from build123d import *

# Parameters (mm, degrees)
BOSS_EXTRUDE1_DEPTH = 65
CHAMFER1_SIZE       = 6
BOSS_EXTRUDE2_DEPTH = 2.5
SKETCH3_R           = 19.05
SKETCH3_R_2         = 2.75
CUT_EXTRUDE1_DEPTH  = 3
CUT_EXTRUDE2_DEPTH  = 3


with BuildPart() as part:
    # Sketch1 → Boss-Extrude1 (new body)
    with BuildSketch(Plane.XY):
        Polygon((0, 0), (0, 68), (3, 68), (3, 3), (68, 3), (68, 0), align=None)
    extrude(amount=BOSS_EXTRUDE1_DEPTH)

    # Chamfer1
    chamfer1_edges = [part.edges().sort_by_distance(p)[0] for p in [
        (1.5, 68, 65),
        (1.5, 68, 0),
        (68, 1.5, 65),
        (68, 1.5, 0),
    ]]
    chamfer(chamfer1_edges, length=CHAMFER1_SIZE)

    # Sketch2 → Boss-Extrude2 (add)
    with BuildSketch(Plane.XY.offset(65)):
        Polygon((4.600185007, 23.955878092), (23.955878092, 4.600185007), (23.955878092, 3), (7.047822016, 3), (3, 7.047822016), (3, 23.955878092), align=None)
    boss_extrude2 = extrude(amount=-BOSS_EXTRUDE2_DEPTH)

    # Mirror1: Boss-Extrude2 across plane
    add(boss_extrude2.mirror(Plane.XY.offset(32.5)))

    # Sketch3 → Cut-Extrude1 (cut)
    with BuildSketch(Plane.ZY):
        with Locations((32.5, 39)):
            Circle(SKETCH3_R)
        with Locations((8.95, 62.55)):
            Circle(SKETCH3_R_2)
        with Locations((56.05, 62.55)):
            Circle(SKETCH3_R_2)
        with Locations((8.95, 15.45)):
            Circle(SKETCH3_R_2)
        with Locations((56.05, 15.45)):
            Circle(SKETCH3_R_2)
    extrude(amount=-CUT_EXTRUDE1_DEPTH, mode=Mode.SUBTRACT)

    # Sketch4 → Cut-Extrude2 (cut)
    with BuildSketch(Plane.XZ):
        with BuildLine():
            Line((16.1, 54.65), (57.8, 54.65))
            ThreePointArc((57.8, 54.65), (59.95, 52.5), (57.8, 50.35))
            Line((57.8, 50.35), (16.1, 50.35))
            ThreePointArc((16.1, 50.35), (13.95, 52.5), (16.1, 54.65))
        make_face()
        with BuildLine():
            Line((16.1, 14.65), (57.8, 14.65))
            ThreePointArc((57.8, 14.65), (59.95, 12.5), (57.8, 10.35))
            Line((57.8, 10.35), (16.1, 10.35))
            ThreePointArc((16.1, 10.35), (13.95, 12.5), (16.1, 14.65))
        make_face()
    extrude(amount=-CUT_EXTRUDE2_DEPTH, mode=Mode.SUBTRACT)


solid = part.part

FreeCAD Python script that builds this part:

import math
import FreeCAD as App
import Part
import Sketcher
from FreeCAD import Vector
Q = App.Units.Quantity


def edges_at(feature, points):
    """Names of the edges that pass closest to the given points."""
    edges = feature.Shape.Edges
    near = lambda p: min(range(len(edges)), key=lambda i: edges[i].distToShape(Part.Vertex(*p))[0])
    return sorted({f"Edge{near(p) + 1}" for p in points})


def add_polygon(sketch, points):
    """Adds a closed chain of lines whose ends are joined by coincident constraints."""
    first, n = sketch.GeometryCount, len(points)
    for a, b in zip(points, points[1:] + points[:1]):
        sketch.addGeometry(Part.LineSegment(App.Vector(*a, 0), App.Vector(*b, 0)), False)
    for i in range(n):
        sketch.addConstraint(Sketcher.Constraint("Coincident", first + i, 2, first + (i + 1) % n, 1))

doc = App.newDocument("Part")
params = doc.addObject("Spreadsheet::Sheet", "Params")
for row, (alias, value) in enumerate([
    ("sketch1_width", "68 mm"),
    ("sketch1_width2", "65 mm"),
    ("pad1_length", "65 mm"),
    ("chamfer_size", "6 mm"),
    ("pad2_length", "2.5 mm"),
    ("sketch3_diameter", "38.1 mm"),
    ("sketch3_diameter2", "5.5 mm"),
    ("pocket1_length", "3 mm"),
    ("sketch4_radius", "2.15 mm"),
    ("sketch4_width", "41.7 mm"),
    ("pocket2_length", "3 mm"),
], start=1):
    params.set(f"A{row}", alias)
    params.set(f"B{row}", "=" + value)
    params.setAlias(f"B{row}", alias)

body = doc.addObject("PartDesign::Body", "Body")

# Sketch on XY plane
sketch1 = body.newObject("Sketcher::SketchObject", "Sketch")
sketch1.AttachmentSupport = (doc.getObject("XY_Plane"), [""])
sketch1.MapMode = "FlatFace"
add_polygon(sketch1, [(0, 68), (0, 0), (68, 0), (68, 3), (3, 3), (3, 68)])  # lines 0-5
sketch1.addConstraint([
    Sketcher.Constraint("Vertical", 0),
    Sketcher.Constraint("Horizontal", 1),
    Sketcher.Constraint("Vertical", 2),
    Sketcher.Constraint("Horizontal", 3),
    Sketcher.Constraint("Vertical", 4),
    Sketcher.Constraint("Horizontal", 5),
    Sketcher.Constraint("Coincident", 0, 2, -1, 1),
    Sketcher.Constraint("Equal", 1, 0),
    Sketcher.Constraint("Equal", 5, 2),
    Sketcher.Constraint("DistanceX", 1, 1, 1, 2, Q("68 mm")),
    Sketcher.Constraint("DistanceX", 3, 2, 3, 1, Q("65 mm")),
])
sketch1.setExpression("Constraints[15]", "Params.sketch1_width")
sketch1.setExpression("Constraints[16]", "Params.sketch1_width2")
pad1 = body.newObject("PartDesign::Pad", "Pad")
pad1.Profile = sketch1
pad1.setExpression("Length", "Params.pad1_length")
doc.recompute()

chamfer = body.newObject("PartDesign::Chamfer", "Chamfer")
chamfer.Base = (pad1, edges_at(pad1, [
    (1.5, 68, 65),
    (1.5, 68, 0),
    (68, 1.5, 65),
    (68, 1.5, 0),
]))
chamfer.setExpression("Size", "Params.chamfer_size")

# Sketch on XY plane
sketch2 = body.newObject("Sketcher::SketchObject", "Sketch001")
sketch2.AttachmentSupport = (doc.getObject("XY_Plane"), [""])
sketch2.MapMode = "FlatFace"
sketch2.AttachmentOffset = App.Placement(Vector(0, 0, 65), App.Rotation())
add_polygon(sketch2, [(24, 4.6), (4.6, 24), (3, 24), (3, 7), (7, 3), (24, 3)])  # lines 0-5
sketch2.addConstraint([
    Sketcher.Constraint("Horizontal", 1),
    Sketcher.Constraint("Vertical", 2),
    Sketcher.Constraint("Horizontal", 4),
    Sketcher.Constraint("Vertical", 5),
    Sketcher.Constraint("Parallel", 0, 3),
    Sketcher.Constraint("Equal", 4, 2),
    Sketcher.Constraint("Equal", 1, 5),
    Sketcher.Constraint("DistanceX", -1, 1, 1, 2, Q("3 mm")),
    Sketcher.Constraint("DistanceY", -1, 1, 3, 2, Q("3 mm")),
    Sketcher.Constraint("DistanceX", 1, 2, 1, 1, Q("1.600185 mm")),
    Sketcher.Constraint("DistanceX", 4, 1, 4, 2, Q("16.908056 mm")),
    Sketcher.Constraint("DistanceY", -1, 1, 0, 2, Q("23.955878 mm")),
])
pad2 = body.newObject("PartDesign::Pad", "Pad001")
pad2.Profile = sketch2
pad2.setExpression("Length", "Params.pad2_length")
pad2.Reversed = True
doc.recompute()

datumplane = body.newObject("PartDesign::Plane", "DatumPlane")
datumplane.AttachmentSupport = (doc.getObject("XY_Plane"), [""])
datumplane.MapMode = "FlatFace"
datumplane.AttachmentOffset = App.Placement(Vector(0, 0, 32.5), App.Rotation())
mirrored = body.newObject("PartDesign::Mirrored", "Mirrored")
mirrored.Originals = [pad2]
mirrored.MirrorPlane = (datumplane, [""])
body.Tip = mirrored

# Sketch on YZ plane
sketch3 = body.newObject("Sketcher::SketchObject", "Sketch002")
sketch3.AttachmentSupport = (doc.getObject("YZ_Plane"), [""])
sketch3.MapMode = "FlatFace"
sketch3.addGeometry([
    Part.Circle(Vector(39, 32.5, 0), Vector(0, 0, 1), 19.1),  # 0
    Part.Circle(Vector(62.5, 8.9, 0), Vector(0, 0, 1), 2.8),  # 1
    Part.Circle(Vector(62.5, 56, 0), Vector(0, 0, 1), 2.8),  # 2
    Part.Circle(Vector(15.4, 8.9, 0), Vector(0, 0, 1), 2.8),  # 3
    Part.Circle(Vector(15.4, 56, 0), Vector(0, 0, 1), 2.8),  # 4
], False)
sketch3.addConstraint([
    Sketcher.Constraint("Equal", 1, 2),
    Sketcher.Constraint("Equal", 2, 3),
    Sketcher.Constraint("Equal", 3, 4),
    Sketcher.Constraint("Horizontal", 1, 3, 3, 3),
    Sketcher.Constraint("Horizontal", 2, 3, 4, 3),
    Sketcher.Constraint("Vertical", 1, 3, 2, 3),
    Sketcher.Constraint("Vertical", 3, 3, 4, 3),
    Sketcher.Constraint("Diameter", 0, Q("38.1 mm")),
    Sketcher.Constraint("Diameter", 1, Q("5.5 mm")),
    Sketcher.Constraint("DistanceX", -1, 1, 0, 3, Q("39 mm")),
    Sketcher.Constraint("DistanceY", -1, 1, 0, 3, Q("32.5 mm")),
    Sketcher.Constraint("DistanceY", 1, 3, 2, 3, Q("47.1 mm")),
    Sketcher.Constraint("DistanceX", 3, 3, 1, 3, Q("47.1 mm")),
    Sketcher.Constraint("DistanceX", -1, 1, 1, 3, Q("62.55 mm")),
    Sketcher.Constraint("DistanceY", -1, 1, 1, 3, Q("8.95 mm")),
])
sketch3.setExpression("Constraints[7]", "Params.sketch3_diameter")
sketch3.setExpression("Constraints[8]", "Params.sketch3_diameter2")
pocket1 = body.newObject("PartDesign::Pocket", "Pocket")
pocket1.Profile = sketch3
pocket1.setExpression("Length", "Params.pocket1_length")
pocket1.Reversed = True

# Sketch on XZ plane
sketch4 = body.newObject("Sketcher::SketchObject", "Sketch003")
sketch4.AttachmentSupport = (doc.getObject("XZ_Plane"), [""])
sketch4.MapMode = "FlatFace"
sketch4.addGeometry([
    Part.LineSegment(Vector(57.8, 54.6, 0), Vector(16.1, 54.6, 0)),  # 0
    Part.ArcOfCircle(Part.Circle(Vector(16.1, 52.5, 0), Vector(0, 0, 1), 2.1), math.radians(90), math.radians(270)),  # 1
    Part.LineSegment(Vector(16.1, 50.4, 0), Vector(57.8, 50.4, 0)),  # 2
    Part.ArcOfCircle(Part.Circle(Vector(57.8, 52.5, 0), Vector(0, 0, 1), 2.1), math.radians(-90), math.radians(90)),  # 3
    Part.LineSegment(Vector(57.8, 14.7, 0), Vector(16.1, 14.7, 0)),  # 4
    Part.ArcOfCircle(Part.Circle(Vector(16.1, 12.5, 0), Vector(0, 0, 1), 2.1), math.radians(90), math.radians(270)),  # 5
    Part.LineSegment(Vector(16.1, 10.3, 0), Vector(57.8, 10.3, 0)),  # 6
    Part.ArcOfCircle(Part.Circle(Vector(57.8, 12.5, 0), Vector(0, 0, 1), 2.1), math.radians(-90), math.radians(90)),  # 7
], False)
sketch4.addConstraint([
    Sketcher.Constraint("Tangent", 0, 2, 1, 1),
    Sketcher.Constraint("Tangent", 1, 2, 2, 1),
    Sketcher.Constraint("Tangent", 2, 2, 3, 1),
    Sketcher.Constraint("Tangent", 3, 2, 0, 1),
    Sketcher.Constraint("Tangent", 4, 2, 5, 1),
    Sketcher.Constraint("Tangent", 5, 2, 6, 1),
    Sketcher.Constraint("Tangent", 6, 2, 7, 1),
    Sketcher.Constraint("Tangent", 7, 2, 4, 1),
    Sketcher.Constraint("Horizontal", 0),
    Sketcher.Constraint("Horizontal", 2),
    Sketcher.Constraint("Horizontal", 4),
    Sketcher.Constraint("Horizontal", 6),
    Sketcher.Constraint("Equal", 3, 5),
    Sketcher.Constraint("Vertical", 1, 3, 5, 3),
    Sketcher.Constraint("Vertical", 3, 3, 7, 3),
    Sketcher.Constraint("Radius", 1, Q("2.15 mm")),
    Sketcher.Constraint("DistanceX", 0, 2, 0, 1, Q("41.7 mm")),
    Sketcher.Constraint("DistanceY", 5, 3, 1, 3, Q("40 mm")),
    Sketcher.Constraint("DistanceX", -1, 1, 1, 3, Q("16.1 mm")),
    Sketcher.Constraint("DistanceY", -1, 1, 1, 3, Q("52.5 mm")),
])
sketch4.setExpression("Constraints[15]", "Params.sketch4_radius")
sketch4.setExpression("Constraints[16]", "Params.sketch4_width")
pocket2 = body.newObject("PartDesign::Pocket", "Pocket001")
pocket2.Profile = sketch4
pocket2.setExpression("Length", "Params.pocket2_length")

doc.recompute()
